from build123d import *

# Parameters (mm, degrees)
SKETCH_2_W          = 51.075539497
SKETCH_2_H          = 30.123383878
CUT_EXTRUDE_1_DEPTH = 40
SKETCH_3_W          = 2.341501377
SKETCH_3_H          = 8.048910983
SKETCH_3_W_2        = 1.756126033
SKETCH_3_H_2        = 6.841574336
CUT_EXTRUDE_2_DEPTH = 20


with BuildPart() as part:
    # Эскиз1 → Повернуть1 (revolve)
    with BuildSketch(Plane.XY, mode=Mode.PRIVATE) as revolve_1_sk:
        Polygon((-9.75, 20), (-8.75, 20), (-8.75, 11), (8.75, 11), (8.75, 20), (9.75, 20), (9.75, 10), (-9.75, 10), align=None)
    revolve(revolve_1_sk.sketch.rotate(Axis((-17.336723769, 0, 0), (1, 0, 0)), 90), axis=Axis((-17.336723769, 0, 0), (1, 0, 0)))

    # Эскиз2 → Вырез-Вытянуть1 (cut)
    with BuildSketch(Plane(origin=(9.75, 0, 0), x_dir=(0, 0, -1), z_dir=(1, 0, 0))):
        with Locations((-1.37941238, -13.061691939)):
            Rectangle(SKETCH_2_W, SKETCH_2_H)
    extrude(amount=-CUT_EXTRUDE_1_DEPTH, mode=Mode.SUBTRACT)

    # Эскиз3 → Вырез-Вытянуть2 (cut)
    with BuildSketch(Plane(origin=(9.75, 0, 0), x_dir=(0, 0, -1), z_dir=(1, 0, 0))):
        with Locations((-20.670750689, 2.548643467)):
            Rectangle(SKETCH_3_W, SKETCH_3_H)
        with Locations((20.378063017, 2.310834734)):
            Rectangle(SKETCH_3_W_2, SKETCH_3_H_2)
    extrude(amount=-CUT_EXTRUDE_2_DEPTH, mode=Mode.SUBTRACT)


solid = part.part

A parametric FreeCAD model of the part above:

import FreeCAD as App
import Part
import Sketcher

doc = App.newDocument("Part")
body = doc.addObject("PartDesign::Body", "Body")

# Sketch on XY plane
sketch1 = body.newObject("Sketcher::SketchObject", "Sketch")
sketch1.AttachmentSupport = (doc.getObject("XY_Plane"), [""])
sketch1.MapMode = "FlatFace"
sketch1.addGeometry([
    Part.LineSegment(App.Vector(-8.75, 20, 0), App.Vector(-9.75, 20, 0)),  # 0
    Part.LineSegment(App.Vector(-9.75, 20, 0), App.Vector(-9.75, 10, 0)),  # 1
    Part.LineSegment(App.Vector(-9.75, 10, 0), App.Vector(9.75, 10, 0)),  # 2
    Part.LineSegment(App.Vector(9.75, 10, 0), App.Vector(9.75, 20, 0)),  # 3
    Part.LineSegment(App.Vector(9.75, 20, 0), App.Vector(8.75, 20, 0)),  # 4
    Part.LineSegment(App.Vector(8.75, 20, 0), App.Vector(8.75, 11, 0)),  # 5
    Part.LineSegment(App.Vector(8.75, 11, 0), App.Vector(-8.75, 11, 0)),  # 6
    Part.LineSegment(App.Vector(-8.75, 11, 0), App.Vector(-8.75, 20, 0)),  # 7
], False)
sketch1.addConstraint([
    Sketcher.Constraint("Coincident", 0, 2, 1, 1),
    Sketcher.Constraint("Coincident", 1, 2, 2, 1),
    Sketcher.Constraint("Coincident", 2, 2, 3, 1),
    Sketcher.Constraint("Coincident", 3, 2, 4, 1),
    Sketcher.Constraint("Coincident", 4, 2, 5, 1),
    Sketcher.Constraint("Coincident", 5, 2, 6, 1),
    Sketcher.Constraint("Coincident", 6, 2, 7, 1),
    Sketcher.Constraint("Coincident", 7, 2, 0, 1),
    Sketcher.Constraint("Horizontal", 0),
    Sketcher.Constraint("Vertical", 1),
    Sketcher.Constraint("Horizontal", 2),
    Sketcher.Constraint("Vertical", 3),
    Sketcher.Constraint("Horizontal", 4),
    Sketcher.Constraint("Vertical", 5),
    Sketcher.Constraint("Horizontal", 6),
    Sketcher.Constraint("Vertical", 7),
    Sketcher.Constraint("Symmetric", 0, 2, 3, 2, -2),
    Sketcher.Constraint("Equal", 0, 4),
    Sketcher.Constraint("DistanceX", 0, 2, 0, 1, 1.0),
    Sketcher.Constraint("DistanceY", 1, 2, 1, 1, 10.0),
    Sketcher.Constraint("DistanceY", 5, 2, 5, 1, 9.0),
    Sketcher.Constraint("DistanceX", 2, 1, 2, 2, 19.5),
    Sketcher.Constraint("DistanceY", -1, 1, 0, 2, 20.0),
])
revolution = body.newObject("PartDesign::Revolution", "Revolution")
revolution.Profile = sketch1
revolution.ReferenceAxis = (sketch1, ["H_Axis"])
revolution.Angle = 360

# Sketch on YZ plane
sketch2 = body.newObject("Sketcher::SketchObject", "Sketch001")
sketch2.AttachmentSupport = (doc.getObject("YZ_Plane"), [""])
sketch2.MapMode = "FlatFace"
sketch2.AttachmentOffset = App.Placement(App.Vector(0, 0, 9.75), App.Rotation())
sketch2.addGeometry([
    Part.LineSegment(App.Vector(2, 26.917182, 0), App.Vector(-28.123384, 26.917182, 0)),
    Part.LineSegment(App.Vector(-28.123384, 26.917182, 0), App.Vector(-28.123384, -24.158357, 0)),
    Part.LineSegment(App.Vector(-28.123384, -24.158357, 0), App.Vector(2, -24.158357, 0)),
    Part.LineSegment(App.Vector(2, -24.158357, 0), App.Vector(2, 26.917182, 0)),
], False)
sketch2.addConstraint([
    Sketcher.Constraint("Coincident", 0, 2, 1, 1),
    Sketcher.Constraint("Coincident", 1, 2, 2, 1),
    Sketcher.Constraint("Coincident", 2, 2, 3, 1),
    Sketcher.Constraint("Coincident", 3, 2, 0, 1),
    Sketcher.Constraint("Horizontal", 0),
    Sketcher.Constraint("Vertical", 1),
    Sketcher.Constraint("Horizontal", 2),
    Sketcher.Constraint("Vertical", 3),
    Sketcher.Constraint("DistanceX", -1, 1, 2, 2, 2.0),
    Sketcher.Constraint("DistanceY", 1, 2, 1, 1, 51.075539),
    Sketcher.Constraint("DistanceX", 0, 2, 0, 1, 30.123384),
    Sketcher.Constraint("DistanceY", -1, 1, 0, 2, 26.917182),
])
pocket1 = body.newObject("PartDesign::Pocket", "Pocket")
pocket1.Profile = sketch2
pocket1.Length = 40

# Sketch on YZ plane
sketch3 = body.newObject("Sketcher::SketchObject", "Sketch002")
sketch3.AttachmentSupport = (doc.getObject("YZ_Plane"), [""])
sketch3.MapMode = "FlatFace"
sketch3.AttachmentOffset = App.Placement(App.Vector(0, 0, 9.75), App.Rotation())
sketch3.addGeometry([
    Part.LineSegment(App.Vector(6.573099, 21.841501, 0), App.Vector(-1.475812, 21.841501, 0)),  # 0
    Part.LineSegment(App.Vector(-1.475812, 21.841501, 0), App.Vector(-1.475812, 19.5, 0)),  # 1
    Part.LineSegment(App.Vector(-1.475812, 19.5, 0), App.Vector(6.573099, 19.5, 0)),  # 2
    Part.LineSegment(App.Vector(6.573099, 19.5, 0), App.Vector(6.573099, 21.841501, 0)),  # 3
    Part.LineSegment(App.Vector(5.731622, -19.5, 0), App.Vector(-1.109952, -19.5, 0)),  # 4
    Part.LineSegment(App.Vector(-1.109952, -19.5, 0), App.Vector(-1.109952, -21.256126, 0)),  # 5
    Part.LineSegment(App.Vector(-1.109952, -21.256126, 0), App.Vector(5.731622, -21.256126, 0)),  # 6
    Part.LineSegment(App.Vector(5.731622, -21.256126, 0), App.Vector(5.731622, -19.5, 0)),  # 7
], False)
sketch3.addConstraint([
    Sketcher.Constraint("Coincident", 0, 2, 1, 1),
    Sketcher.Constraint("Coincident", 1, 2, 2, 1),
    Sketcher.Constraint("Coincident", 2, 2, 3, 1),
    Sketcher.Constraint("Coincident", 3, 2, 0, 1),
    Sketcher.Constraint("Coincident", 4, 2, 5, 1),
    Sketcher.Constraint("Coincident", 5, 2, 6, 1),
    Sketcher.Constraint("Coincident", 6, 2, 7, 1),
    Sketcher.Constraint("Coincident", 7, 2, 4, 1),
    Sketcher.Constraint("Horizontal", 0),
    Sketcher.Constraint("Vertical", 1),
    Sketcher.Constraint("Horizontal", 2),
    Sketcher.Constraint("Vertical", 3),
    Sketcher.Constraint("Horizontal", 4),
    Sketcher.Constraint("Vertical", 5),
    Sketcher.Constraint("Horizontal", 6),
    Sketcher.Constraint("Vertical", 7),
    Sketcher.Constraint("DistanceY", 4, 2, 1, 2, 39.0),
    Sketcher.Constraint("DistanceY", -1, 1, 1, 2, 19.5),
    Sketcher.Constraint("DistanceY", 1, 2, 1, 1, 2.341501),
    Sketcher.Constraint("DistanceX", 0, 2, 0, 1, 8.048911),
    Sketcher.Constraint("DistanceX", -1, 1, 2, 2, 6.573099),
    Sketcher.Constraint("DistanceX", 4, 2, 4, 1, 6.841574),
    Sketcher.Constraint("DistanceY", 5, 2, 5, 1, 1.756126),
    Sketcher.Constraint("DistanceX", -1, 1, 6, 2, 5.731622),
])
pocket2 = body.newObject("PartDesign::Pocket", "Pocket001")
pocket2.Profile = sketch3
pocket2.Length = 20

doc.recompute()
